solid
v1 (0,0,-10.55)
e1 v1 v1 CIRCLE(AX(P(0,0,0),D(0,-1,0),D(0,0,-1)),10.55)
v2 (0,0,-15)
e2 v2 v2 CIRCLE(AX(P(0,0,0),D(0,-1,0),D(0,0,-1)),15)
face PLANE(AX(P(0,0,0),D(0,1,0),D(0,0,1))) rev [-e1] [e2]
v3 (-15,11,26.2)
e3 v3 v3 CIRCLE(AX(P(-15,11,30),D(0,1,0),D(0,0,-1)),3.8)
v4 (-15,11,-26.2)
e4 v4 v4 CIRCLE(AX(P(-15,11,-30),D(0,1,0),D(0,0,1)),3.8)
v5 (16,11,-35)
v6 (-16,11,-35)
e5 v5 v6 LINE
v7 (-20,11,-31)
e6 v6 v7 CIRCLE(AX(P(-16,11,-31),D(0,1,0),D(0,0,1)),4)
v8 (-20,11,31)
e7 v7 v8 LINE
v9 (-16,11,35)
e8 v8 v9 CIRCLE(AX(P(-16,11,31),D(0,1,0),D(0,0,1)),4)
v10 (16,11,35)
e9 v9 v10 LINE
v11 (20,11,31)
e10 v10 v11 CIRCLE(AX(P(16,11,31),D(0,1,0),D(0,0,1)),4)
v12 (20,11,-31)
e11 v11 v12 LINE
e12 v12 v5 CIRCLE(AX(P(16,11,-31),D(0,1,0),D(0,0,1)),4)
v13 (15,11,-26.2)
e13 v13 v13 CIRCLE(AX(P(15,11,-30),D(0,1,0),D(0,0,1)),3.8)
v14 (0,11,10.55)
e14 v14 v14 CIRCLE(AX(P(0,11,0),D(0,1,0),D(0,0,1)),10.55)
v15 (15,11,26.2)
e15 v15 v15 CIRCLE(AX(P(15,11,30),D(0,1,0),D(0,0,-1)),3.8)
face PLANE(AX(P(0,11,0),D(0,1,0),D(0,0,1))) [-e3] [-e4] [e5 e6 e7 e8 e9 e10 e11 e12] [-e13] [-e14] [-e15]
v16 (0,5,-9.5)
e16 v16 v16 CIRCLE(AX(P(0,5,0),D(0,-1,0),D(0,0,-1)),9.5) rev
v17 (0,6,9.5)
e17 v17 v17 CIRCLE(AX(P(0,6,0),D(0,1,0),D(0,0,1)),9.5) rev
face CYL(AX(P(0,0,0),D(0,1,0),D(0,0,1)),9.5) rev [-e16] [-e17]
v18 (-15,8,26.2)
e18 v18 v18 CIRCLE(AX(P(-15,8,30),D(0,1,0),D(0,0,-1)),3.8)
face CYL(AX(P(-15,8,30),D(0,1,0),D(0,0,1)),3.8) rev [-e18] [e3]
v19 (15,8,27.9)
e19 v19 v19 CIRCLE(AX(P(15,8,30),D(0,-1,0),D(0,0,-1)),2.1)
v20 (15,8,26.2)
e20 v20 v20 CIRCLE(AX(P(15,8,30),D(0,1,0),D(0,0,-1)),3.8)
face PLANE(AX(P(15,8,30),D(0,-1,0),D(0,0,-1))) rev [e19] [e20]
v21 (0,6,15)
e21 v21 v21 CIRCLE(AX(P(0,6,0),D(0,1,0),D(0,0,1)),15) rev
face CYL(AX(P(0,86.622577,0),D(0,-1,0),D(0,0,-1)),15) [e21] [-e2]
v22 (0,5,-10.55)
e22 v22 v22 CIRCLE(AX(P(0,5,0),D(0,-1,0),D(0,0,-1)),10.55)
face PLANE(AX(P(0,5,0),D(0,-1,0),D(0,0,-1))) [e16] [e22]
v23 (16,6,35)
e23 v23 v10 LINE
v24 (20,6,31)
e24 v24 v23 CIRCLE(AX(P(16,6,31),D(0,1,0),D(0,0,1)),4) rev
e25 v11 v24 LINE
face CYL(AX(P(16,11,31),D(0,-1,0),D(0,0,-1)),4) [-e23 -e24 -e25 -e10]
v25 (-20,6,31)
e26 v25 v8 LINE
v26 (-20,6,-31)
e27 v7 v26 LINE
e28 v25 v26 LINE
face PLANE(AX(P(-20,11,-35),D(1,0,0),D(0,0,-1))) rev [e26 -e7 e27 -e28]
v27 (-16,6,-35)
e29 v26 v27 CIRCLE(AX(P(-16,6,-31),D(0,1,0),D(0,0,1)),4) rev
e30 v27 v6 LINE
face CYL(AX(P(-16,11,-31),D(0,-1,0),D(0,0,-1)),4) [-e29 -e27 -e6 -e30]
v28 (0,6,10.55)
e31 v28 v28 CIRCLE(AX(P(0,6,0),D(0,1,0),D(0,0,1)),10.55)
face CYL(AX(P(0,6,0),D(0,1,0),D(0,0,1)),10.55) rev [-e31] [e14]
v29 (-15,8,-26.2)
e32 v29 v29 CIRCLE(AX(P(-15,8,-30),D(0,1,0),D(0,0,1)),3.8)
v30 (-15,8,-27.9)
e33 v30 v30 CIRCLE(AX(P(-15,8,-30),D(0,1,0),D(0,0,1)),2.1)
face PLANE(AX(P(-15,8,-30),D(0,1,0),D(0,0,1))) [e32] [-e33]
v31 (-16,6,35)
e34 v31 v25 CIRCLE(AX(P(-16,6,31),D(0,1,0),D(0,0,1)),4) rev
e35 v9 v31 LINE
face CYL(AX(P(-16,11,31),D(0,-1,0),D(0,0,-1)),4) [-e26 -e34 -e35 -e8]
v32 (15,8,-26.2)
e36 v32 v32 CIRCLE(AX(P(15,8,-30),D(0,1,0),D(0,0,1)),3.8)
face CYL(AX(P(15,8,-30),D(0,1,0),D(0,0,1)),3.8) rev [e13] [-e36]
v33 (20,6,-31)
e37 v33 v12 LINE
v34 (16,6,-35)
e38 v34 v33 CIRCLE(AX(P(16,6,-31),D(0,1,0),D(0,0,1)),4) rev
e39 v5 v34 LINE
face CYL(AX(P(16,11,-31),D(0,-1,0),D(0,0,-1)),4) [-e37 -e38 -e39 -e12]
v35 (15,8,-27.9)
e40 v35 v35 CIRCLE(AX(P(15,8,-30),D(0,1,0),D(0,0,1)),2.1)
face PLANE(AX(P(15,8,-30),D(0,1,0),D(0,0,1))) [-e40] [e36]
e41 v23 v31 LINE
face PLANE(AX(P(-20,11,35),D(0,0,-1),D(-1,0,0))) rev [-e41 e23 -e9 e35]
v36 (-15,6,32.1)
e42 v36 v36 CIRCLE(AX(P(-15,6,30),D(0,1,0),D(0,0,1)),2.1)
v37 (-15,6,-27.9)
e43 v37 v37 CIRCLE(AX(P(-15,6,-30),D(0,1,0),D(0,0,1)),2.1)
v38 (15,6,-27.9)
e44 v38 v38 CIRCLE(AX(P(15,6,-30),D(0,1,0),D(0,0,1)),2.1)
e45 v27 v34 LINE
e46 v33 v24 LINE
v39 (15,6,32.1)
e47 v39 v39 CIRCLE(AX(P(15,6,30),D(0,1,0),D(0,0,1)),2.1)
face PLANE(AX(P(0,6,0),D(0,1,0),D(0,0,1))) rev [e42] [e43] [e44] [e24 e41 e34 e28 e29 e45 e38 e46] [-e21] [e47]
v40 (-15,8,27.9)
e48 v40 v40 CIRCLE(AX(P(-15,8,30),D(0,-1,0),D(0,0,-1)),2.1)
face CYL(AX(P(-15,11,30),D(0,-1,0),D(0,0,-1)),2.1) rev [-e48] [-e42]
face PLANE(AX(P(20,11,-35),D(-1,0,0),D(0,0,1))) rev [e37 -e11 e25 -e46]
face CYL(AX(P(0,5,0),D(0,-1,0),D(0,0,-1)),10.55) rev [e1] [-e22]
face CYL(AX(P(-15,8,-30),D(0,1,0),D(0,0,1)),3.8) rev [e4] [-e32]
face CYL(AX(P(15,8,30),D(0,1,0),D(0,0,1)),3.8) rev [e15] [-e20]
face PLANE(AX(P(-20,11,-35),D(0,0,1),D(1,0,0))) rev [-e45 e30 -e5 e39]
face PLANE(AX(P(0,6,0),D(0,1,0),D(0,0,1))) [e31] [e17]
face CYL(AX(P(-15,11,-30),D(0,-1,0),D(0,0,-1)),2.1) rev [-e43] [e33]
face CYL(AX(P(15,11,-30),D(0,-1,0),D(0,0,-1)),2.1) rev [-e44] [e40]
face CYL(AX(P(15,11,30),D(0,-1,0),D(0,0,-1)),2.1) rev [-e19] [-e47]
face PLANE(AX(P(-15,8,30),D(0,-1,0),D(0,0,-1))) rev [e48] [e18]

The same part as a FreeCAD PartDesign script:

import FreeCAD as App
import Part
import Sketcher

V = App.Vector


def edges_at(feature, points):
    """Names of the edges that pass closest to the given points."""
    edges = feature.Shape.Edges
    near = lambda p: min(range(len(edges)), key=lambda i: edges[i].distToShape(Part.Vertex(*p))[0])
    return sorted({f"Edge{near(p) + 1}" for p in points})


def add_polygon(sketch, points):
    """Adds a closed chain of lines whose ends are joined by coincident constraints."""
    first, n = sketch.GeometryCount, len(points)
    for a, b in zip(points, points[1:] + points[:1]):
        sketch.addGeometry(Part.LineSegment(App.Vector(*a, 0), App.Vector(*b, 0)), False)
    for i in range(n):
        sketch.addConstraint(Sketcher.Constraint("Coincident", first + i, 2, first + (i + 1) % n, 1))

doc = App.newDocument("Part")
body = doc.addObject("PartDesign::Body", "Body")

# Sketch on XZ plane
sketch1 = doc.addObject("Sketcher::SketchObject", "Sketch")
body.addObject(sketch1)
sketch1.AttachmentSupport = (doc.XZ_Plane, [""])
sketch1.MapMode = "FlatFace"
add_polygon(sketch1, [(-20, -35), (-20, 35), (20, 35), (20, -35)])  # lines 0-3
sketch1.addGeometry(Part.Circle(V(-15, 30, 0), V(0, 0, 1), 2.1), False)  # 4
sketch1.addGeometry(Part.Circle(V(15, 30, 0), V(0, 0, 1), 2.1), False)  # 5
sketch1.addGeometry(Part.Circle(V(-15, -30, 0), V(0, 0, 1), 2.1), False)  # 6
sketch1.addGeometry(Part.Circle(V(15, -30, 0), V(0, 0, 1), 2.1), False)  # 7
sketch1.addConstraint([
    Sketcher.Constraint("Vertical", 0),
    Sketcher.Constraint("Horizontal", 1),
    Sketcher.Constraint("Vertical", 2),
    Sketcher.Constraint("Horizontal", 3),
    Sketcher.Constraint("Equal", 4, 5),
    Sketcher.Constraint("Equal", 5, 6),
    Sketcher.Constraint("Equal", 6, 7),
    Sketcher.Constraint("Symmetric", 5, 3, 6, 3, -1, 1),
    Sketcher.Constraint("Symmetric", 4, 3, 7, 3, -1, 1),
    Sketcher.Constraint("Symmetric", 0, 2, 2, 2, -1, 1),
    Sketcher.Constraint("Symmetric", 4, 3, 5, 3, -2),
    Sketcher.Constraint("Diameter", 4, 4.2),
    Sketcher.Constraint("DistanceX", 1, 1, 1, 2, 40.0),
    Sketcher.Constraint("DistanceY", 0, 1, 0, 2, 70.0),
    Sketcher.Constraint("DistanceX", 4, 3, -1, 1, 15.0),
    Sketcher.Constraint("DistanceY", -1, 1, 4, 3, 30.0),
])
pad1 = doc.addObject("PartDesign::Pad", "Pad")
body.addObject(pad1)
pad1.Profile = sketch1
pad1.Length = 11
pad1.Reversed = True

# Sketch on XZ plane
sketch2 = doc.addObject("Sketcher::SketchObject", "Sketch001")
body.addObject(sketch2)
sketch2.AttachmentSupport = (doc.XZ_Plane, [""])
sketch2.MapMode = "FlatFace"
sketch2.AttachmentOffset = App.Placement(V(0, 0, -11), App.Rotation())
sketch2.addGeometry(Part.Circle(V(0, 0, 0), V(0, 0, 1), 10), False)
sketch2.addConstraint([
    Sketcher.Constraint("Coincident", 0, 3, -1, 1),
    Sketcher.Constraint("Diameter", 0, 19.0),
])
pocket1 = doc.addObject("PartDesign::Pocket", "Pocket")
body.addObject(pocket1)
pocket1.Profile = sketch2
pocket1.Length = 11
pocket1.Reversed = True

# Sketch on XZ plane
sketch3 = doc.addObject("Sketcher::SketchObject", "Sketch002")
body.addObject(sketch3)
sketch3.AttachmentSupport = (doc.XZ_Plane, [""])
sketch3.MapMode = "FlatFace"
sketch3.AttachmentOffset = App.Placement(V(0, 0, -11), App.Rotation())
sketch3.addGeometry(Part.Circle(V(0, 0, 0), V(0, 0, 1), 11), False)
sketch3.addConstraint([
    Sketcher.Constraint("Coincident", 0, 3, -1, 1),
    Sketcher.Constraint("Diameter", 0, 21.1),
])
pocket2 = doc.addObject("PartDesign::Pocket", "Pocket001")
body.addObject(pocket2)
pocket2.Profile = sketch3
pocket2.Length = 5
pocket2.Reversed = True

# Sketch on XZ plane
sketch4 = doc.addObject("Sketcher::SketchObject", "Sketch003")
body.addObject(sketch4)
sketch4.AttachmentSupport = (doc.XZ_Plane, [""])
sketch4.MapMode = "FlatFace"
sketch4.AttachmentOffset = App.Placement(V(0, 0, -5), App.Rotation())
sketch4.addGeometry(Part.Circle(V(0, 0, 0), V(0, 0, 1), 11), False)
sketch4.addConstraint([
    Sketcher.Constraint("Coincident", 0, 3, -1, 1),
    Sketcher.Constraint("Diameter", 0, 21.1),
])
pocket3 = doc.addObject("PartDesign::Pocket", "Pocket002")
body.addObject(pocket3)
pocket3.Profile = sketch4
pocket3.Length = 5
pocket3.Reversed = True

# Sketch on XZ plane
sketch5 = doc.addObject("Sketcher::SketchObject", "Sketch004")
body.addObject(sketch5)
sketch5.AttachmentSupport = (doc.XZ_Plane, [""])
sketch5.MapMode = "FlatFace"
add_polygon(sketch5, [(-20, 35), (-20, -35), (20, -35), (20, 35)])  # lines 0-3
sketch5.addGeometry(Part.Circle(V(0, 0, 0), V(0, 0, 1), 15), False)  # 4
sketch5.addConstraint([
    Sketcher.Constraint("Vertical", 0),
    Sketcher.Constraint("Horizontal", 1),
    Sketcher.Constraint("Vertical", 2),
    Sketcher.Constraint("Horizontal", 3),
    Sketcher.Constraint("Coincident", 4, 3, -1, 1),
    Sketcher.Constraint("Symmetric", 0, 2, 2, 2, -1, 1),
    Sketcher.Constraint("Diameter", 4, 30.0),
    Sketcher.Constraint("DistanceX", 1, 1, 1, 2, 40.0),
    Sketcher.Constraint("DistanceY", 0, 2, 0, 1, 70.0),
])
pocket4 = doc.addObject("PartDesign::Pocket", "Pocket003")
body.addObject(pocket4)
pocket4.Profile = sketch5
pocket4.Length = 6

# Sketch on XZ plane
sketch6 = doc.addObject("Sketcher::SketchObject", "Sketch005")
body.addObject(sketch6)
sketch6.AttachmentSupport = (doc.XZ_Plane, [""])
sketch6.MapMode = "FlatFace"
sketch6.AttachmentOffset = App.Placement(V(0, 0, -11), App.Rotation())
sketch6.addGeometry([
    Part.Circle(V(-15, -30, 0), V(0, 0, 1), 3.8),
    Part.Circle(V(15, -30, 0), V(0, 0, 1), 3.8),
    Part.Circle(V(15, 30, 0), V(0, 0, 1), 3.8),
    Part.Circle(V(-15, 30, 0), V(0, 0, 1), 3.8),
], False)
sketch6.addConstraint([
    Sketcher.Constraint("Equal", 0, 1),
    Sketcher.Constraint("Equal", 1, 2),
    Sketcher.Constraint("Equal", 2, 3),
    Sketcher.Constraint("Symmetric", 0, 3, 2, 3, -1, 1),
    Sketcher.Constraint("Symmetric", 1, 3, 3, 3, -1, 1),
    Sketcher.Constraint("Symmetric", 0, 3, 1, 3, -2),
    Sketcher.Constraint("Diameter", 0, 7.6),
    Sketcher.Constraint("DistanceX", 0, 3, -1, 1, 15.0),
    Sketcher.Constraint("DistanceY", 0, 3, -1, 1, 30.0),
])
pocket5 = doc.addObject("PartDesign::Pocket", "Pocket004")
body.addObject(pocket5)
pocket5.Profile = sketch6
pocket5.Length = 3
pocket5.Reversed = True
doc.recompute()

fillet = doc.addObject("PartDesign::Fillet", "Fillet")
body.addObject(fillet)
fillet.Base = (pocket5, edges_at(pocket5, [
    (20, 8.5, 35),
    (-20, 8.5, 35),
    (-20, 8.5, -35),
    (20, 8.5, -35),
]))
fillet.Radius = 4

doc.recompute()
